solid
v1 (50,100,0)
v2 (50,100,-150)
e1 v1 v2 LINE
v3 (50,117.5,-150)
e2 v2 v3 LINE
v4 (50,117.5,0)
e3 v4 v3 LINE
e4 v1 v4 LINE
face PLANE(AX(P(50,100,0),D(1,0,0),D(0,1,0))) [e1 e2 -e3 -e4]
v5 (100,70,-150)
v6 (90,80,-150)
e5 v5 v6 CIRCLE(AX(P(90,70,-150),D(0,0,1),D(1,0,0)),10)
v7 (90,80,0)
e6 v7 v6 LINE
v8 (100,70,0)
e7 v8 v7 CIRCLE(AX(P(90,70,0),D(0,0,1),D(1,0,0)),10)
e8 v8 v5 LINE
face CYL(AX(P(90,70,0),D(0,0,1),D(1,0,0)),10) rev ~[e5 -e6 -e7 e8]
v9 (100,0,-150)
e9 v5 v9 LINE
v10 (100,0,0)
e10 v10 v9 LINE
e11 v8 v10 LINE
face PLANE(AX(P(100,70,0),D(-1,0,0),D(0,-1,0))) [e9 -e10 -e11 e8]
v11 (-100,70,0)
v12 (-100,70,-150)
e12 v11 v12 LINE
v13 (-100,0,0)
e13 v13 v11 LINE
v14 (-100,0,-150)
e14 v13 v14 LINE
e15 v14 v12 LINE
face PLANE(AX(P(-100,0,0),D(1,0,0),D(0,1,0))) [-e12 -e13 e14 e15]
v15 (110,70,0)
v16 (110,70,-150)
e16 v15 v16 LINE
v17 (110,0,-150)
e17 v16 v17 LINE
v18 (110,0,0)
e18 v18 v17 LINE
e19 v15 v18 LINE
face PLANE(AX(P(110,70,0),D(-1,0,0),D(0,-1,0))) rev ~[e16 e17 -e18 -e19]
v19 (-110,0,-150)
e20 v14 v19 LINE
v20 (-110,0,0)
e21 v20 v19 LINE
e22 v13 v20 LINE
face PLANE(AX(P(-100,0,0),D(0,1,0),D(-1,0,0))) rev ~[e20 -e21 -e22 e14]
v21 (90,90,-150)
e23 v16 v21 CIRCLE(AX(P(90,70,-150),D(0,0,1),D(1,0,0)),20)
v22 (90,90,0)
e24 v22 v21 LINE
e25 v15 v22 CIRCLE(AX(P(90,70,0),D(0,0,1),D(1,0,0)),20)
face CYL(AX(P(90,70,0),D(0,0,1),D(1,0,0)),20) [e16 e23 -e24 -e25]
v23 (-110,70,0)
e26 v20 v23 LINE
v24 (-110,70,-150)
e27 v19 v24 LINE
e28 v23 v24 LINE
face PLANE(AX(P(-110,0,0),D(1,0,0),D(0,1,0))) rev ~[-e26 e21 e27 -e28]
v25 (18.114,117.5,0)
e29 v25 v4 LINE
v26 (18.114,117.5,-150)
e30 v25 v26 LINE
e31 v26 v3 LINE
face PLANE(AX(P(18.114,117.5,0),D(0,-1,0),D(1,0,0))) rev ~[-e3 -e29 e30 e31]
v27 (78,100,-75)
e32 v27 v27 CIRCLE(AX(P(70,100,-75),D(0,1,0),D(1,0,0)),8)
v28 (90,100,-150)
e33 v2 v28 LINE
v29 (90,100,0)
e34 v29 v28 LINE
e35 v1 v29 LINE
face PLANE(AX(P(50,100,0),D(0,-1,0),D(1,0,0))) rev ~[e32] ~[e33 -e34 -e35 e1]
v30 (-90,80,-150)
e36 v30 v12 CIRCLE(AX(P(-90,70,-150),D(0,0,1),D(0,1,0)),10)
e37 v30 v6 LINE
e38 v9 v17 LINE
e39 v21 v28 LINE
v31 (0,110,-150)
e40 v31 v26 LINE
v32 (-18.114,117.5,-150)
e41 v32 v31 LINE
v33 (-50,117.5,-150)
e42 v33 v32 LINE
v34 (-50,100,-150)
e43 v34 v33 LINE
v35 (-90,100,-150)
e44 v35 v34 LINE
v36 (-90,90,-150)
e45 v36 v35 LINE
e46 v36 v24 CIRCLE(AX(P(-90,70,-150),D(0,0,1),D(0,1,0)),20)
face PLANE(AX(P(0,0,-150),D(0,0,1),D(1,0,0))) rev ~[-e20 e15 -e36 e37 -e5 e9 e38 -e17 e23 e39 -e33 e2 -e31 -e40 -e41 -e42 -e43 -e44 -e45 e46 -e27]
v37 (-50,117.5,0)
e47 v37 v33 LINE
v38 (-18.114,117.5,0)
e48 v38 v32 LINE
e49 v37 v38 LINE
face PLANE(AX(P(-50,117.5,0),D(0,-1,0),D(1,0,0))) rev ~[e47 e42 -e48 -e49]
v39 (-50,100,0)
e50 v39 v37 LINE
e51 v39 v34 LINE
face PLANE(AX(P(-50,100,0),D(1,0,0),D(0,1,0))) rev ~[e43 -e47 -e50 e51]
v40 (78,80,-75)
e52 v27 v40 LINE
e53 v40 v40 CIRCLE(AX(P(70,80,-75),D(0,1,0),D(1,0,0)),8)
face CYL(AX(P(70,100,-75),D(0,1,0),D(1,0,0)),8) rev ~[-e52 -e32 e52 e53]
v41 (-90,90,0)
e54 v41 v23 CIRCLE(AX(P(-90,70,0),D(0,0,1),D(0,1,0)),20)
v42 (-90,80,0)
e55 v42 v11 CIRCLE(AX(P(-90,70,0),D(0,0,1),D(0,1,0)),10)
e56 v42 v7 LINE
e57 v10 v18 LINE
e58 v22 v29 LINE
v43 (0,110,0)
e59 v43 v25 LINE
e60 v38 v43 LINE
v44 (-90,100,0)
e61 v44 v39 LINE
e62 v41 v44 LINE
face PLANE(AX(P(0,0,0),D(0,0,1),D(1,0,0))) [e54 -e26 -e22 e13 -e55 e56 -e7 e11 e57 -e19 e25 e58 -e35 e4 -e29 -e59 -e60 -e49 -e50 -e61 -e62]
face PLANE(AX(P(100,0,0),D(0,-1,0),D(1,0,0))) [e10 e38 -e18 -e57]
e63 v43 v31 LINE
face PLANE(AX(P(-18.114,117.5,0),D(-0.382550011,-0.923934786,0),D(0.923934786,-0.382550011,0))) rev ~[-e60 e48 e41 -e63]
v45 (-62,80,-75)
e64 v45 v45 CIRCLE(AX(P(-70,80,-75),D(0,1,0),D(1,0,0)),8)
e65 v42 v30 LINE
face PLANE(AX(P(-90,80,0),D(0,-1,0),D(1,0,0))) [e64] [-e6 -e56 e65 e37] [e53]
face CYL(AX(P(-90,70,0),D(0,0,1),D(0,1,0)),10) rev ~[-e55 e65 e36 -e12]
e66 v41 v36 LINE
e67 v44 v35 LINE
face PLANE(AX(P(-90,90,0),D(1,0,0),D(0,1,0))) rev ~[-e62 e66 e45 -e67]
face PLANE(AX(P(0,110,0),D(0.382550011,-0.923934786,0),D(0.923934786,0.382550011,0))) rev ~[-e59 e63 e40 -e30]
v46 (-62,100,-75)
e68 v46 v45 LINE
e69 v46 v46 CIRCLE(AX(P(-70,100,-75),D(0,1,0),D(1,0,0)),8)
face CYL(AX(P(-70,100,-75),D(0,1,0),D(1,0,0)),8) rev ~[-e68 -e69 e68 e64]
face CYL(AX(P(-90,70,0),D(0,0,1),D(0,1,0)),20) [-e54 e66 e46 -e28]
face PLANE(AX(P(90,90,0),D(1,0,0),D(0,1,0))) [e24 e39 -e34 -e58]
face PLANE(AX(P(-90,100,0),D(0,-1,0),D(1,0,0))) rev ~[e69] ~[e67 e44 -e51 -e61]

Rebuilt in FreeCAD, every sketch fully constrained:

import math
import FreeCAD as App
import Part
import Sketcher

V = App.Vector

doc = App.newDocument("Part")
params = doc.addObject("Spreadsheet::Sheet", "Params")
for row, (alias, value) in enumerate([
    ("sketch1_radius", "10 mm"),
    ("sketch1_radius2", "20 mm"),
    ("sketch1_height", "17.5 mm"),
    ("pad1_length", "150 mm"),
    ("sketch2_diameter", "16 mm"),
    ("pocket1_length", "50 mm"),
], start=1):
    params.set(f"A{row}", alias)
    params.set(f"B{row}", "=" + value)
    params.setAlias(f"B{row}", alias)

body = doc.addObject("PartDesign::Body", "Body")

sketch1 = body.newObject("Sketcher::SketchObject", "Sketch")
sketch1.AttachmentSupport = (doc.getObject("XY_Plane"), [""])
sketch1.MapMode = "FlatFace"
sketch1.addGeometry([
    Part.LineSegment(V(-110, 0, 0), V(-100, 0, 0)),
    Part.LineSegment(V(-100, 0, 0), V(-100, 70, 0)),
    Part.ArcOfCircle(Part.Circle(V(-90, 70, 0), V(0, 0, 1), 10), math.radians(90), math.radians(180)),
    Part.LineSegment(V(-90, 80, 0), V(90, 80, 0)),
    Part.ArcOfCircle(Part.Circle(V(90, 70, 0), V(0, 0, 1), 10), math.radians(0), math.radians(90)),
    Part.LineSegment(V(100, 70, 0), V(100, 0, 0)),
    Part.LineSegment(V(100, 0, 0), V(110, 0, 0)),
    Part.LineSegment(V(110, 0, 0), V(110, 70, 0)),
    Part.ArcOfCircle(Part.Circle(V(90, 70, 0), V(0, 0, 1), 20), math.radians(0), math.radians(90)),
    Part.LineSegment(V(90, 90, 0), V(90, 100, 0)),
    Part.LineSegment(V(90, 100, 0), V(50, 100, 0)),
    Part.LineSegment(V(50, 100, 0), V(50, 118, 0)),
    Part.LineSegment(V(50, 118, 0), V(18, 118, 0)),
    Part.LineSegment(V(18, 118, 0), V(0, 110, 0)),
    Part.LineSegment(V(0, 110, 0), V(-18, 118, 0)),
    Part.LineSegment(V(-18, 118, 0), V(-50, 118, 0)),
    Part.LineSegment(V(-50, 118, 0), V(-50, 100, 0)),
    Part.LineSegment(V(-50, 100, 0), V(-90, 100, 0)),
    Part.LineSegment(V(-90, 100, 0), V(-90, 90, 0)),
    Part.ArcOfCircle(Part.Circle(V(-90, 70, 0), V(0, 0, 1), 20), math.radians(90), math.radians(180)),
    Part.LineSegment(V(-110, 70, 0), V(-110, 0, 0)),
], False)
sketch1.addConstraint([
    Sketcher.Constraint("Coincident", 0, 2, 1, 1),
    Sketcher.Constraint("Tangent", 1, 2, 2, 2),
    Sketcher.Constraint("Tangent", 2, 1, 3, 1),
    Sketcher.Constraint("Tangent", 3, 2, 4, 2),
    Sketcher.Constraint("Tangent", 4, 1, 5, 1),
    Sketcher.Constraint("Coincident", 5, 2, 6, 1),
    Sketcher.Constraint("Coincident", 6, 2, 7, 1),
    Sketcher.Constraint("Tangent", 7, 2, 8, 1),
    Sketcher.Constraint("Coincident", 8, 2, 9, 1),
    Sketcher.Constraint("Coincident", 9, 2, 10, 1),
    Sketcher.Constraint("Coincident", 10, 2, 11, 1),
    Sketcher.Constraint("Coincident", 11, 2, 12, 1),
    Sketcher.Constraint("Coincident", 12, 2, 13, 1),
    Sketcher.Constraint("Coincident", 13, 2, 14, 1),
    Sketcher.Constraint("Coincident", 14, 2, 15, 1),
    Sketcher.Constraint("Coincident", 15, 2, 16, 1),
    Sketcher.Constraint("Coincident", 16, 2, 17, 1),
    Sketcher.Constraint("Coincident", 17, 2, 18, 1),
    Sketcher.Constraint("Coincident", 18, 2, 19, 1),
    Sketcher.Constraint("Tangent", 19, 2, 20, 1),
    Sketcher.Constraint("Coincident", 20, 2, 0, 1),
    Sketcher.Constraint("Horizontal", 0),
    Sketcher.Constraint("Vertical", 1),
    Sketcher.Constraint("Horizontal", 3),
    Sketcher.Constraint("Vertical", 5),
    Sketcher.Constraint("Horizontal", 6),
    Sketcher.Constraint("Vertical", 7),
    Sketcher.Constraint("Vertical", 9),
    Sketcher.Constraint("Horizontal", 10),
    Sketcher.Constraint("Vertical", 11),
    Sketcher.Constraint("Horizontal", 12),
    Sketcher.Constraint("Horizontal", 15),
    Sketcher.Constraint("Vertical", 16),
    Sketcher.Constraint("Horizontal", 17),
    Sketcher.Constraint("Vertical", 18),
    Sketcher.Constraint("Vertical", 20),
    Sketcher.Constraint("Coincident", 8, 3, 4, 3),
    Sketcher.Constraint("Coincident", 19, 3, 2, 3),
    Sketcher.Constraint("Equal", 2, 4),
    Sketcher.Constraint("Equal", 8, 19),
    Sketcher.Constraint("Symmetric", 0, 2, 5, 2, -1, 1),
    Sketcher.Constraint("Symmetric", 12, 2, 14, 2, -2),
    Sketcher.Constraint("Symmetric", 10, 2, 16, 2, -2),
    Sketcher.Constraint("PointOnObject", 0, 2, -1),
    Sketcher.Constraint("PointOnObject", 13, 2, -2),
    Sketcher.Constraint("Vertical", 3, 2, 8, 2),
    Sketcher.Constraint("Vertical", 2, 1, 17, 2),
    Sketcher.Constraint("Equal", 6, 9),
    Sketcher.Constraint("Radius", 2, 10.0),
    Sketcher.Constraint("Radius", 8, 20.0),
    Sketcher.Constraint("DistanceY", 11, 1, 11, 2, 17.5),
    Sketcher.Constraint("DistanceX", 0, 2, -1, 1, 100.0),
    Sketcher.Constraint("DistanceY", -1, 1, 2, 1, 80.0),
    Sketcher.Constraint("DistanceX", -1, 1, 10, 2, 50.0),
    Sketcher.Constraint("DistanceY", 10, 2, 13, 2, 10.0),
    Sketcher.Constraint("DistanceX", 12, 2, 12, 1, 31.886),
])
sketch1.setExpression("Constraints[48]", "Params.sketch1_radius")
sketch1.setExpression("Constraints[49]", "Params.sketch1_radius2")
sketch1.setExpression("Constraints[50]", "Params.sketch1_height")
pad1 = body.newObject("PartDesign::Pad", "Pad")
pad1.Profile = sketch1
pad1.setExpression("Length", "Params.pad1_length")
pad1.Reversed = True

sketch2 = body.newObject("Sketcher::SketchObject", "Sketch001")
sketch2.AttachmentSupport = (doc.getObject("XZ_Plane"), [""])
sketch2.MapMode = "FlatFace"
sketch2.AttachmentOffset = App.Placement(V(0, 0, -100), App.Rotation())
sketch2.addGeometry([
    Part.Circle(V(-70, -75, 0), V(0, 0, 1), 8),
    Part.Circle(V(70, -75, 0), V(0, 0, 1), 8),
], False)
sketch2.addConstraint([
    Sketcher.Constraint("Equal", 0, 1),
    Sketcher.Constraint("Symmetric", 0, 3, 1, 3, -2),
    Sketcher.Constraint("Diameter", 0, 16.0),
    Sketcher.Constraint("DistanceY", 0, 3, -1, 1, 75.0),
    Sketcher.Constraint("DistanceX", 0, 3, -1, 1, 70.0),
])
sketch2.setExpression("Constraints[2]", "Params.sketch2_diameter")
pocket1 = body.newObject("PartDesign::Pocket", "Pocket")
pocket1.Profile = sketch2
pocket1.setExpression("Length", "Params.pocket1_length")
pocket1.Reversed = True

doc.recompute()
